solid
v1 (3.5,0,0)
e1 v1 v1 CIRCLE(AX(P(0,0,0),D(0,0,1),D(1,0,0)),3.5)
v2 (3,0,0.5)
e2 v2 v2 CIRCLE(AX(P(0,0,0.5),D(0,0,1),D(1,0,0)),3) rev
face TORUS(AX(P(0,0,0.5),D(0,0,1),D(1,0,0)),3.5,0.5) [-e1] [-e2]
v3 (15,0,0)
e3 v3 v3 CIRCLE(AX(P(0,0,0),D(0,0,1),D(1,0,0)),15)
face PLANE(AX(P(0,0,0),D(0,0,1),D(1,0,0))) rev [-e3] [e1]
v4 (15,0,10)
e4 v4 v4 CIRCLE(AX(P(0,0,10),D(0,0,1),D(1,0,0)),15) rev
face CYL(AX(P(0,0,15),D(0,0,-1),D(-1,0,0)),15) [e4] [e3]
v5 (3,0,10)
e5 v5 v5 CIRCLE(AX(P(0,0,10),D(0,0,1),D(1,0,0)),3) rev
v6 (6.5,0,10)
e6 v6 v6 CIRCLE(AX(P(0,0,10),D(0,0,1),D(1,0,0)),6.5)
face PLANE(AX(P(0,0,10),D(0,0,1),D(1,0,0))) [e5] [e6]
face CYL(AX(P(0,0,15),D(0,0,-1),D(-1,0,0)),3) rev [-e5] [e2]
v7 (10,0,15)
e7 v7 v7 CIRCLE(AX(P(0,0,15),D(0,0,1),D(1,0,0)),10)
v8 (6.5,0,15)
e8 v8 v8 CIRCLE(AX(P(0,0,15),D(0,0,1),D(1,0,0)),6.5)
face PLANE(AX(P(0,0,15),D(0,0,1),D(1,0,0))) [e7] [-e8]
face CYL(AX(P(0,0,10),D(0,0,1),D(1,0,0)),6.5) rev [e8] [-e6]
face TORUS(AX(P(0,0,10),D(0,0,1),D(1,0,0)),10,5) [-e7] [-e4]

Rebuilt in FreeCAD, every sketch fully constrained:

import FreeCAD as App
import Part
import Sketcher

V = App.Vector
Q = App.Units.Quantity


def edges_at(feature, points):
    """Names of the edges that pass closest to the given points."""
    edges = feature.Shape.Edges
    near = lambda p: min(range(len(edges)), key=lambda i: edges[i].distToShape(Part.Vertex(*p))[0])
    return sorted({f"Edge{near(p) + 1}" for p in points})

doc = App.newDocument("Part")
body = doc.addObject("PartDesign::Body", "Body")

sketch1 = body.newObject("Sketcher::SketchObject", "Sketch")
sketch1.AttachmentSupport = (doc.getObject("XY_Plane"), [""])
sketch1.MapMode = "FlatFace"
sketch1.addGeometry(Part.Circle(V(0, 0, 0), V(0, 0, 1), 15), False)
sketch1.addConstraint([
    Sketcher.Constraint("Coincident", 0, 3, -1, 1),
    Sketcher.Constraint("Diameter", 0, Q("30 mm")),
])
pad1 = body.newObject("PartDesign::Pad", "Pad")
pad1.Profile = sketch1
pad1.Length = 15
doc.recompute()

fillet = body.newObject("PartDesign::Fillet", "Fillet")
fillet.Base = (pad1, edges_at(pad1, [(-15, 0, 15)]))
fillet.Radius = 5

sketch2 = body.newObject("Sketcher::SketchObject", "Sketch001")
sketch2.AttachmentSupport = (doc.getObject("XY_Plane"), [""])
sketch2.MapMode = "FlatFace"
sketch2.addGeometry(Part.Circle(V(0, 0, 0), V(0, 0, 1), 3), False)
sketch2.addConstraint([
    Sketcher.Constraint("Coincident", 0, 3, -1, 1),
    Sketcher.Constraint("Diameter", 0, Q("6 mm")),
])
pocket1 = body.newObject("PartDesign::Pocket", "Pocket")
pocket1.Profile = sketch2
pocket1.Length = 15
pocket1.Reversed = True

sketch3 = body.newObject("Sketcher::SketchObject", "Sketch002")
sketch3.AttachmentSupport = (doc.getObject("XY_Plane"), [""])
sketch3.MapMode = "FlatFace"
sketch3.AttachmentOffset = App.Placement(V(0, 0, 15), App.Rotation())
sketch3.addGeometry(Part.Circle(V(0, 0, 0), V(0, 0, 1), 6), False)
sketch3.addConstraint([
    Sketcher.Constraint("Coincident", 0, 3, -1, 1),
    Sketcher.Constraint("Diameter", 0, Q("13 mm")),
])
pocket2 = body.newObject("PartDesign::Pocket", "Pocket001")
pocket2.Profile = sketch3
pocket2.Length = 5
doc.recompute()

fillet2 = body.newObject("PartDesign::Fillet", "Fillet001")
fillet2.Base = (pocket2, edges_at(pocket2, [(3, 0, 0)]))
fillet2.Radius = 0.5

doc.recompute()
